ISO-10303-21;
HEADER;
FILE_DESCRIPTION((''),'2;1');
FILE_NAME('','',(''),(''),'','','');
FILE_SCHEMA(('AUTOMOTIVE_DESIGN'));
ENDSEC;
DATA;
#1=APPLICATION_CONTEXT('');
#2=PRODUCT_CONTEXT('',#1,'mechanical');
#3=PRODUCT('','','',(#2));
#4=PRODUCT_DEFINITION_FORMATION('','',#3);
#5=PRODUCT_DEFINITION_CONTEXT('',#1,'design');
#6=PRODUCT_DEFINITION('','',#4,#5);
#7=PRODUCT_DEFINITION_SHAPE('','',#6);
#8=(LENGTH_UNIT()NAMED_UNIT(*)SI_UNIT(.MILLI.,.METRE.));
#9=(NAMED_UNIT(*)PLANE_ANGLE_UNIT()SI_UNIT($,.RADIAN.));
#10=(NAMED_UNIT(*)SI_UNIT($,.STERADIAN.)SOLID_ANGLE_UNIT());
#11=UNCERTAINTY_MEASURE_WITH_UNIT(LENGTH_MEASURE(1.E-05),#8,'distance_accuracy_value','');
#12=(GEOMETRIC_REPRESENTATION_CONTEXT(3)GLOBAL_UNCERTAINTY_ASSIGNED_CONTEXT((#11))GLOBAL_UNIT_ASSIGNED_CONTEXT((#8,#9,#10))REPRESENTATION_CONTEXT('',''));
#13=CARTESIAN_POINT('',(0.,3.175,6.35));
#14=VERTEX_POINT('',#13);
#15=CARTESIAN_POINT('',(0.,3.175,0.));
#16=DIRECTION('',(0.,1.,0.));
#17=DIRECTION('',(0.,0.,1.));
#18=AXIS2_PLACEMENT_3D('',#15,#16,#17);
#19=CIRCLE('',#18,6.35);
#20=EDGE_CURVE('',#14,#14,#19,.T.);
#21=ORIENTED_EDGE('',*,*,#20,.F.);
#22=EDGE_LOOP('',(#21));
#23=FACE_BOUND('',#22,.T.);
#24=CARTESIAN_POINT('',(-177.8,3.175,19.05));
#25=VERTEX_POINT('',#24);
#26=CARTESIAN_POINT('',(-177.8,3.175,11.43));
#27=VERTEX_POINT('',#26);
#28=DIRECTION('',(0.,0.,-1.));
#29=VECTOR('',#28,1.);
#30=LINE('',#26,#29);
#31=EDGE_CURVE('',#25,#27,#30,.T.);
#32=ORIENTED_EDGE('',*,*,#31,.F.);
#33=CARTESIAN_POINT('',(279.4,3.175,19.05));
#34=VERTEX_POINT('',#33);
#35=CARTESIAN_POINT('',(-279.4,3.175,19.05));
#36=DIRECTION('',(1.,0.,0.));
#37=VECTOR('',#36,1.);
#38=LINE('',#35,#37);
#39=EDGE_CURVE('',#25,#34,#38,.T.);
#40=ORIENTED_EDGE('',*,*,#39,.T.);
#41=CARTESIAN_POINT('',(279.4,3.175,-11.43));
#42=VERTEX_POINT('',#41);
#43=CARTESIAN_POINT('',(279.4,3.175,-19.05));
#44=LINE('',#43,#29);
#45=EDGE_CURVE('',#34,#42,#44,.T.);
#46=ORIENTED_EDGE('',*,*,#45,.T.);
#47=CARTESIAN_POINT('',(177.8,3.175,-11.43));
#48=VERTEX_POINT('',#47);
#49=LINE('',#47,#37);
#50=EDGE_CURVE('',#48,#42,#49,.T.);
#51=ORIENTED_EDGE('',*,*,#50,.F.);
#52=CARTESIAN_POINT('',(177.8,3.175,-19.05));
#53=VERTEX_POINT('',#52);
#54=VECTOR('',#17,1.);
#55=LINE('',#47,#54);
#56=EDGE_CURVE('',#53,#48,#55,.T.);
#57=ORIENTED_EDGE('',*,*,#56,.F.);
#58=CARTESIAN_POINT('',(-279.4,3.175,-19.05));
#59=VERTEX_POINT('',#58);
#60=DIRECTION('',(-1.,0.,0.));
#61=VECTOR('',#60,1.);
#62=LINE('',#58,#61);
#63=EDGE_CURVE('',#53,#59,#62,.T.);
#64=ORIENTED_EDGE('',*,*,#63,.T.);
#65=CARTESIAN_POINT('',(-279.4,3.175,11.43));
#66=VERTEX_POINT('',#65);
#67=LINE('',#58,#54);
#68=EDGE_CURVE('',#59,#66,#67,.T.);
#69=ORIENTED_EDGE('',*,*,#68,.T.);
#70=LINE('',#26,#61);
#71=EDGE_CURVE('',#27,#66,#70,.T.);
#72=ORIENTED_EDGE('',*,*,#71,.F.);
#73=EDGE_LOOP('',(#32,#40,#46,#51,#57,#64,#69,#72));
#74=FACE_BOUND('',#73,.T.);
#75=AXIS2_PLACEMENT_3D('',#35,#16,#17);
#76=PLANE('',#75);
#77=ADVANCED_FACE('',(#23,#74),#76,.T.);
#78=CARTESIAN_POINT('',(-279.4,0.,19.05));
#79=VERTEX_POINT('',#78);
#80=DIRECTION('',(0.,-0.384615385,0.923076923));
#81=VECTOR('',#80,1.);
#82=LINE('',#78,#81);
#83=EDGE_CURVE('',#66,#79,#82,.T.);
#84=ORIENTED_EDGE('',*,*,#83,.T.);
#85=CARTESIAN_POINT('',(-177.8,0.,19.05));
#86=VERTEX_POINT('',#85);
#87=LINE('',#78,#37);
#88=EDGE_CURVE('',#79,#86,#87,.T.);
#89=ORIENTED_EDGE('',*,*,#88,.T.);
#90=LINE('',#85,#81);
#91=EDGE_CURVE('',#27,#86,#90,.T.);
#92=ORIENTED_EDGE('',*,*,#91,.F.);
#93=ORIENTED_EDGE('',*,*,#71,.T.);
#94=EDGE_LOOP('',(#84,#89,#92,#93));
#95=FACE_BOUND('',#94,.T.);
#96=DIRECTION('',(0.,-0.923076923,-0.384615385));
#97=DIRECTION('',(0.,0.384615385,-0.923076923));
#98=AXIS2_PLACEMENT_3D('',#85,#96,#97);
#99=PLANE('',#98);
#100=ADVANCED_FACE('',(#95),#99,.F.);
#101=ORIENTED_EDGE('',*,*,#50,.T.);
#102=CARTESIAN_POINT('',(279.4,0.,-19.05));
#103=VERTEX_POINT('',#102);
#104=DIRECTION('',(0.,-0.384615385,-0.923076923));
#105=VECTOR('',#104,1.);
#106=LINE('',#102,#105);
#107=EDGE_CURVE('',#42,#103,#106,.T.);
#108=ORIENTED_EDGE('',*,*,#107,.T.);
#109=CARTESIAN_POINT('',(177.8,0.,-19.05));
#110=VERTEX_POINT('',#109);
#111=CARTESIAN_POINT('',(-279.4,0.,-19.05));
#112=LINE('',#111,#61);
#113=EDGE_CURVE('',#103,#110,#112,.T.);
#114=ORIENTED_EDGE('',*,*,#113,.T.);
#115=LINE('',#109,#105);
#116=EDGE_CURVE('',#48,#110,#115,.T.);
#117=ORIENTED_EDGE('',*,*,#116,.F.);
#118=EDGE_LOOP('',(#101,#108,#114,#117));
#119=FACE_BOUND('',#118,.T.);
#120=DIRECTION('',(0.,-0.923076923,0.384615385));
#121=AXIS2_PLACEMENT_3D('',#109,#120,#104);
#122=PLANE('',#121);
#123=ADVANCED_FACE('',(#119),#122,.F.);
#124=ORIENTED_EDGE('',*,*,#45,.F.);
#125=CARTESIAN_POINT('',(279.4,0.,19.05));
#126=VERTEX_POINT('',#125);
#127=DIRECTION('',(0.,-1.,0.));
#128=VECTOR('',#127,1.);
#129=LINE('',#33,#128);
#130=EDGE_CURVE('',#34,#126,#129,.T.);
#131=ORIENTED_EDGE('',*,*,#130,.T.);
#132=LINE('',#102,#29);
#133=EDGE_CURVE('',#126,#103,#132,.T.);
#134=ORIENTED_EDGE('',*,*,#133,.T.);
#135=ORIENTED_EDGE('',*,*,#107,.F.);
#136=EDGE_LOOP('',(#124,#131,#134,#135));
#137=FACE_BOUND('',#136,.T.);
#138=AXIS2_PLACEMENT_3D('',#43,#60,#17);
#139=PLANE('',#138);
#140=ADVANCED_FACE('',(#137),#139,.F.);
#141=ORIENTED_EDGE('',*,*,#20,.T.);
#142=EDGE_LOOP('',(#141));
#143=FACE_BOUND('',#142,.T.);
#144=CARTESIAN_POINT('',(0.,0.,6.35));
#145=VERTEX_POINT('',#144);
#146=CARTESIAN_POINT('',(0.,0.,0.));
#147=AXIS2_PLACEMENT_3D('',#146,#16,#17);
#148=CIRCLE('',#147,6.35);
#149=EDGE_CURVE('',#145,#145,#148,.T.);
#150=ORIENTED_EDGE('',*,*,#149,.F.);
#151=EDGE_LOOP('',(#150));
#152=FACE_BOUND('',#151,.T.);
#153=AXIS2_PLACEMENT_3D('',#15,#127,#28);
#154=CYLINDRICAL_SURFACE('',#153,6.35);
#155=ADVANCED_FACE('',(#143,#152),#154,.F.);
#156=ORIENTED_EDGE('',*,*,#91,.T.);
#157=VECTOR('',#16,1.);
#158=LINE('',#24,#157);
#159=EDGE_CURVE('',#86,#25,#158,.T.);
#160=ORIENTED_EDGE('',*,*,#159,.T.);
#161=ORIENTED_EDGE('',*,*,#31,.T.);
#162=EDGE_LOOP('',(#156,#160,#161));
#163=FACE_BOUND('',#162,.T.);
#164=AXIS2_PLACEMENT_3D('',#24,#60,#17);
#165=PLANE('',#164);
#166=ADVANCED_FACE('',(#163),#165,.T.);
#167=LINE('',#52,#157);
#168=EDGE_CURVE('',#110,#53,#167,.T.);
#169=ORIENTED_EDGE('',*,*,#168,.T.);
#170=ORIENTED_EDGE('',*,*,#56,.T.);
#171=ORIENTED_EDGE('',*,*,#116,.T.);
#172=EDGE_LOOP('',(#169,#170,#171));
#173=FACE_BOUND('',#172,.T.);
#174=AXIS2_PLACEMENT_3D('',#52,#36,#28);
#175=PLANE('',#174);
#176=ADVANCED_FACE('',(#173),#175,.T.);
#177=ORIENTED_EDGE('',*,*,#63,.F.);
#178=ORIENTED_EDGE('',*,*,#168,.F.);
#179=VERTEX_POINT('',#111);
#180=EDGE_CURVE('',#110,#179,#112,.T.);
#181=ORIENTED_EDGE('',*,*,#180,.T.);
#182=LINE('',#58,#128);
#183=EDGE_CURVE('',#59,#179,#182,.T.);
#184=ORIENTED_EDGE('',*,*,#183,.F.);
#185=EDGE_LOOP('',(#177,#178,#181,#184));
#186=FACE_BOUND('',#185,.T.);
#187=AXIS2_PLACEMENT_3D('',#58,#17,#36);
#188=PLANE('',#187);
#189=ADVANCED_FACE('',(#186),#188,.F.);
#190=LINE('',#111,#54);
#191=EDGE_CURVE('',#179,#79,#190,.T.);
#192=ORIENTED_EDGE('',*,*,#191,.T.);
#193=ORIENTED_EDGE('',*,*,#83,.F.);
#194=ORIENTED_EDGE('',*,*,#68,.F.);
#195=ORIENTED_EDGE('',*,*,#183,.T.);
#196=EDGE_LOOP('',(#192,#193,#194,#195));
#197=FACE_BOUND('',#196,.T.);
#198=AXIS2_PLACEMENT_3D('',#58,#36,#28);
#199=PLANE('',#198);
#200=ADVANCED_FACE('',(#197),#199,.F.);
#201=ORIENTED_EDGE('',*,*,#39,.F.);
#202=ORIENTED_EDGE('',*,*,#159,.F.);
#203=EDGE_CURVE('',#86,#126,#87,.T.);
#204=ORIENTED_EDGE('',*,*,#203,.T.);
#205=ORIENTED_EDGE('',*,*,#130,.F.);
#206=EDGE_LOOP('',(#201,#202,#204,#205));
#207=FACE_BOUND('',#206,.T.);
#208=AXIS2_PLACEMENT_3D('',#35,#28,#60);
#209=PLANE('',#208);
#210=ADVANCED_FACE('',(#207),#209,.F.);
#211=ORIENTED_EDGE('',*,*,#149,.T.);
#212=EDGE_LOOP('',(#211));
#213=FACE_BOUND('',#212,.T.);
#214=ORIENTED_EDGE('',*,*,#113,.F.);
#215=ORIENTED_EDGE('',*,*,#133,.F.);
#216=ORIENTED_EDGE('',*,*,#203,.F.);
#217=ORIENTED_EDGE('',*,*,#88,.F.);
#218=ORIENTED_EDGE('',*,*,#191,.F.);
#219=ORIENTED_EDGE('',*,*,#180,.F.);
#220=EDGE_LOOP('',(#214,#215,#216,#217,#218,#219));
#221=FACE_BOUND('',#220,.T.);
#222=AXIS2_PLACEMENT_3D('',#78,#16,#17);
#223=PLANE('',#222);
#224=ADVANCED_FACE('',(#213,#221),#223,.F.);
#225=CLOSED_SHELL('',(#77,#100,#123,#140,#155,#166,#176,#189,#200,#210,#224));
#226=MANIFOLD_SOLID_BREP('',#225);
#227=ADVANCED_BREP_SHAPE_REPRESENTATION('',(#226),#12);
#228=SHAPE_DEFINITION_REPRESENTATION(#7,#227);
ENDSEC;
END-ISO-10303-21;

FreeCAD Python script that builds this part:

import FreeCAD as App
import Part
import Sketcher
Q = App.Units.Quantity


def add_polygon(sketch, points):
    """Adds a closed chain of lines whose ends are joined by coincident constraints."""
    first, n = sketch.GeometryCount, len(points)
    for a, b in zip(points, points[1:] + points[:1]):
        sketch.addGeometry(Part.LineSegment(App.Vector(*a, 0), App.Vector(*b, 0)), False)
    for i in range(n):
        sketch.addConstraint(Sketcher.Constraint("Coincident", first + i, 2, first + (i + 1) % n, 1))

doc = App.newDocument("Part")
params = doc.addObject("Spreadsheet::Sheet", "Params")
for row, (alias, value) in enumerate([
    ("sketch1_diameter", "0.5 in"),
    ("sketch1_width", "22 in"),
    ("sketch1_height", "1.5 in"),
    ("pad1_length", "0.125 in"),
    ("sketch2_height", "0.3 in"),
    ("sketch2_width", "0.125 in"),
    ("pocket1_length", "4 in"),
    ("sketch3_height", "0.3 in"),
    ("sketch3_width", "0.125 in"),
    ("pocket2_length", "4 in"),
], start=1):
    params.set(f"A{row}", alias)
    params.set(f"B{row}", "=" + value)
    params.setAlias(f"B{row}", alias)

body = doc.addObject("PartDesign::Body", "Body")

# Sketch on XZ plane
sketch1 = body.newObject("Sketcher::SketchObject", "Sketch")
sketch1.AttachmentSupport = (doc.getObject("XZ_Plane"), [""])
sketch1.MapMode = "FlatFace"
add_polygon(sketch1, [(-279.4, -19.05), (-279.4, 19.05), (279.4, 19.05), (279.4, -19.05)])  # lines 0-3
sketch1.addGeometry(Part.Circle(App.Vector(0, 0, 0), App.Vector(0, 0, 1), 6.35), False)  # 4
sketch1.addConstraint([
    Sketcher.Constraint("Vertical", 0),
    Sketcher.Constraint("Horizontal", 1),
    Sketcher.Constraint("Vertical", 2),
    Sketcher.Constraint("Horizontal", 3),
    Sketcher.Constraint("Coincident", 4, 3, -1, 1),
    Sketcher.Constraint("Symmetric", 0, 2, 2, 2, -1, 1),
    Sketcher.Constraint("Diameter", 4, Q("0.5 in")),
    Sketcher.Constraint("DistanceX", 1, 1, 1, 2, Q("22 in")),
    Sketcher.Constraint("DistanceY", 0, 1, 0, 2, Q("1.5 in")),
])
sketch1.setExpression("Constraints[10]", "Params.sketch1_diameter")
sketch1.setExpression("Constraints[11]", "Params.sketch1_width")
sketch1.setExpression("Constraints[12]", "Params.sketch1_height")
pad1 = body.newObject("PartDesign::Pad", "Pad")
pad1.Profile = sketch1
pad1.setExpression("Length", "Params.pad1_length")
pad1.Reversed = True

# Sketch on YZ plane
sketch2 = body.newObject("Sketcher::SketchObject", "Sketch001")
sketch2.AttachmentSupport = (doc.getObject("YZ_Plane"), [""])
sketch2.MapMode = "FlatFace"
sketch2.AttachmentOffset = App.Placement(App.Vector(0, 0, 11 * 25.4), App.Rotation())
add_polygon(sketch2, [(3.175, -11.43), (0, -19.05), (3.175, -19.05)])  # lines 0-2
sketch2.addConstraint([
    Sketcher.Constraint("Horizontal", 1),
    Sketcher.Constraint("Vertical", 2),
    Sketcher.Constraint("PointOnObject", 0, 2, -2),
    Sketcher.Constraint("DistanceY", 2, 1, 2, 2, Q("0.3 in")),
    Sketcher.Constraint("DistanceX", 1, 1, 1, 2, Q("0.125 in")),
    Sketcher.Constraint("DistanceY", 0, 2, -1, 1, Q("0.75 in")),
])
sketch2.setExpression("Constraints[6]", "Params.sketch2_height")
sketch2.setExpression("Constraints[7]", "Params.sketch2_width")
pocket1 = body.newObject("PartDesign::Pocket", "Pocket")
pocket1.Profile = sketch2
pocket1.setExpression("Length", "Params.pocket1_length")

# Sketch on YZ plane
sketch3 = body.newObject("Sketcher::SketchObject", "Sketch002")
sketch3.AttachmentSupport = (doc.getObject("YZ_Plane"), [""])
sketch3.MapMode = "FlatFace"
sketch3.AttachmentOffset = App.Placement(App.Vector(0, 0, -11 * 25.4), App.Rotation())
add_polygon(sketch3, [(3.175, 11.43), (0, 19.05), (3.175, 19.05)])  # lines 0-2
sketch3.addConstraint([
    Sketcher.Constraint("Horizontal", 1),
    Sketcher.Constraint("Vertical", 2),
    Sketcher.Constraint("PointOnObject", 0, 2, -2),
    Sketcher.Constraint("DistanceY", 2, 2, 2, 1, Q("0.3 in")),
    Sketcher.Constraint("DistanceX", 1, 1, 1, 2, Q("0.125 in")),
    Sketcher.Constraint("DistanceY", -1, 1, 0, 2, Q("0.75 in")),
])
sketch3.setExpression("Constraints[6]", "Params.sketch3_height")
sketch3.setExpression("Constraints[7]", "Params.sketch3_width")
pocket2 = body.newObject("PartDesign::Pocket", "Pocket001")
pocket2.Profile = sketch3
pocket2.setExpression("Length", "Params.pocket2_length")
pocket2.Reversed = True

doc.recompute()
